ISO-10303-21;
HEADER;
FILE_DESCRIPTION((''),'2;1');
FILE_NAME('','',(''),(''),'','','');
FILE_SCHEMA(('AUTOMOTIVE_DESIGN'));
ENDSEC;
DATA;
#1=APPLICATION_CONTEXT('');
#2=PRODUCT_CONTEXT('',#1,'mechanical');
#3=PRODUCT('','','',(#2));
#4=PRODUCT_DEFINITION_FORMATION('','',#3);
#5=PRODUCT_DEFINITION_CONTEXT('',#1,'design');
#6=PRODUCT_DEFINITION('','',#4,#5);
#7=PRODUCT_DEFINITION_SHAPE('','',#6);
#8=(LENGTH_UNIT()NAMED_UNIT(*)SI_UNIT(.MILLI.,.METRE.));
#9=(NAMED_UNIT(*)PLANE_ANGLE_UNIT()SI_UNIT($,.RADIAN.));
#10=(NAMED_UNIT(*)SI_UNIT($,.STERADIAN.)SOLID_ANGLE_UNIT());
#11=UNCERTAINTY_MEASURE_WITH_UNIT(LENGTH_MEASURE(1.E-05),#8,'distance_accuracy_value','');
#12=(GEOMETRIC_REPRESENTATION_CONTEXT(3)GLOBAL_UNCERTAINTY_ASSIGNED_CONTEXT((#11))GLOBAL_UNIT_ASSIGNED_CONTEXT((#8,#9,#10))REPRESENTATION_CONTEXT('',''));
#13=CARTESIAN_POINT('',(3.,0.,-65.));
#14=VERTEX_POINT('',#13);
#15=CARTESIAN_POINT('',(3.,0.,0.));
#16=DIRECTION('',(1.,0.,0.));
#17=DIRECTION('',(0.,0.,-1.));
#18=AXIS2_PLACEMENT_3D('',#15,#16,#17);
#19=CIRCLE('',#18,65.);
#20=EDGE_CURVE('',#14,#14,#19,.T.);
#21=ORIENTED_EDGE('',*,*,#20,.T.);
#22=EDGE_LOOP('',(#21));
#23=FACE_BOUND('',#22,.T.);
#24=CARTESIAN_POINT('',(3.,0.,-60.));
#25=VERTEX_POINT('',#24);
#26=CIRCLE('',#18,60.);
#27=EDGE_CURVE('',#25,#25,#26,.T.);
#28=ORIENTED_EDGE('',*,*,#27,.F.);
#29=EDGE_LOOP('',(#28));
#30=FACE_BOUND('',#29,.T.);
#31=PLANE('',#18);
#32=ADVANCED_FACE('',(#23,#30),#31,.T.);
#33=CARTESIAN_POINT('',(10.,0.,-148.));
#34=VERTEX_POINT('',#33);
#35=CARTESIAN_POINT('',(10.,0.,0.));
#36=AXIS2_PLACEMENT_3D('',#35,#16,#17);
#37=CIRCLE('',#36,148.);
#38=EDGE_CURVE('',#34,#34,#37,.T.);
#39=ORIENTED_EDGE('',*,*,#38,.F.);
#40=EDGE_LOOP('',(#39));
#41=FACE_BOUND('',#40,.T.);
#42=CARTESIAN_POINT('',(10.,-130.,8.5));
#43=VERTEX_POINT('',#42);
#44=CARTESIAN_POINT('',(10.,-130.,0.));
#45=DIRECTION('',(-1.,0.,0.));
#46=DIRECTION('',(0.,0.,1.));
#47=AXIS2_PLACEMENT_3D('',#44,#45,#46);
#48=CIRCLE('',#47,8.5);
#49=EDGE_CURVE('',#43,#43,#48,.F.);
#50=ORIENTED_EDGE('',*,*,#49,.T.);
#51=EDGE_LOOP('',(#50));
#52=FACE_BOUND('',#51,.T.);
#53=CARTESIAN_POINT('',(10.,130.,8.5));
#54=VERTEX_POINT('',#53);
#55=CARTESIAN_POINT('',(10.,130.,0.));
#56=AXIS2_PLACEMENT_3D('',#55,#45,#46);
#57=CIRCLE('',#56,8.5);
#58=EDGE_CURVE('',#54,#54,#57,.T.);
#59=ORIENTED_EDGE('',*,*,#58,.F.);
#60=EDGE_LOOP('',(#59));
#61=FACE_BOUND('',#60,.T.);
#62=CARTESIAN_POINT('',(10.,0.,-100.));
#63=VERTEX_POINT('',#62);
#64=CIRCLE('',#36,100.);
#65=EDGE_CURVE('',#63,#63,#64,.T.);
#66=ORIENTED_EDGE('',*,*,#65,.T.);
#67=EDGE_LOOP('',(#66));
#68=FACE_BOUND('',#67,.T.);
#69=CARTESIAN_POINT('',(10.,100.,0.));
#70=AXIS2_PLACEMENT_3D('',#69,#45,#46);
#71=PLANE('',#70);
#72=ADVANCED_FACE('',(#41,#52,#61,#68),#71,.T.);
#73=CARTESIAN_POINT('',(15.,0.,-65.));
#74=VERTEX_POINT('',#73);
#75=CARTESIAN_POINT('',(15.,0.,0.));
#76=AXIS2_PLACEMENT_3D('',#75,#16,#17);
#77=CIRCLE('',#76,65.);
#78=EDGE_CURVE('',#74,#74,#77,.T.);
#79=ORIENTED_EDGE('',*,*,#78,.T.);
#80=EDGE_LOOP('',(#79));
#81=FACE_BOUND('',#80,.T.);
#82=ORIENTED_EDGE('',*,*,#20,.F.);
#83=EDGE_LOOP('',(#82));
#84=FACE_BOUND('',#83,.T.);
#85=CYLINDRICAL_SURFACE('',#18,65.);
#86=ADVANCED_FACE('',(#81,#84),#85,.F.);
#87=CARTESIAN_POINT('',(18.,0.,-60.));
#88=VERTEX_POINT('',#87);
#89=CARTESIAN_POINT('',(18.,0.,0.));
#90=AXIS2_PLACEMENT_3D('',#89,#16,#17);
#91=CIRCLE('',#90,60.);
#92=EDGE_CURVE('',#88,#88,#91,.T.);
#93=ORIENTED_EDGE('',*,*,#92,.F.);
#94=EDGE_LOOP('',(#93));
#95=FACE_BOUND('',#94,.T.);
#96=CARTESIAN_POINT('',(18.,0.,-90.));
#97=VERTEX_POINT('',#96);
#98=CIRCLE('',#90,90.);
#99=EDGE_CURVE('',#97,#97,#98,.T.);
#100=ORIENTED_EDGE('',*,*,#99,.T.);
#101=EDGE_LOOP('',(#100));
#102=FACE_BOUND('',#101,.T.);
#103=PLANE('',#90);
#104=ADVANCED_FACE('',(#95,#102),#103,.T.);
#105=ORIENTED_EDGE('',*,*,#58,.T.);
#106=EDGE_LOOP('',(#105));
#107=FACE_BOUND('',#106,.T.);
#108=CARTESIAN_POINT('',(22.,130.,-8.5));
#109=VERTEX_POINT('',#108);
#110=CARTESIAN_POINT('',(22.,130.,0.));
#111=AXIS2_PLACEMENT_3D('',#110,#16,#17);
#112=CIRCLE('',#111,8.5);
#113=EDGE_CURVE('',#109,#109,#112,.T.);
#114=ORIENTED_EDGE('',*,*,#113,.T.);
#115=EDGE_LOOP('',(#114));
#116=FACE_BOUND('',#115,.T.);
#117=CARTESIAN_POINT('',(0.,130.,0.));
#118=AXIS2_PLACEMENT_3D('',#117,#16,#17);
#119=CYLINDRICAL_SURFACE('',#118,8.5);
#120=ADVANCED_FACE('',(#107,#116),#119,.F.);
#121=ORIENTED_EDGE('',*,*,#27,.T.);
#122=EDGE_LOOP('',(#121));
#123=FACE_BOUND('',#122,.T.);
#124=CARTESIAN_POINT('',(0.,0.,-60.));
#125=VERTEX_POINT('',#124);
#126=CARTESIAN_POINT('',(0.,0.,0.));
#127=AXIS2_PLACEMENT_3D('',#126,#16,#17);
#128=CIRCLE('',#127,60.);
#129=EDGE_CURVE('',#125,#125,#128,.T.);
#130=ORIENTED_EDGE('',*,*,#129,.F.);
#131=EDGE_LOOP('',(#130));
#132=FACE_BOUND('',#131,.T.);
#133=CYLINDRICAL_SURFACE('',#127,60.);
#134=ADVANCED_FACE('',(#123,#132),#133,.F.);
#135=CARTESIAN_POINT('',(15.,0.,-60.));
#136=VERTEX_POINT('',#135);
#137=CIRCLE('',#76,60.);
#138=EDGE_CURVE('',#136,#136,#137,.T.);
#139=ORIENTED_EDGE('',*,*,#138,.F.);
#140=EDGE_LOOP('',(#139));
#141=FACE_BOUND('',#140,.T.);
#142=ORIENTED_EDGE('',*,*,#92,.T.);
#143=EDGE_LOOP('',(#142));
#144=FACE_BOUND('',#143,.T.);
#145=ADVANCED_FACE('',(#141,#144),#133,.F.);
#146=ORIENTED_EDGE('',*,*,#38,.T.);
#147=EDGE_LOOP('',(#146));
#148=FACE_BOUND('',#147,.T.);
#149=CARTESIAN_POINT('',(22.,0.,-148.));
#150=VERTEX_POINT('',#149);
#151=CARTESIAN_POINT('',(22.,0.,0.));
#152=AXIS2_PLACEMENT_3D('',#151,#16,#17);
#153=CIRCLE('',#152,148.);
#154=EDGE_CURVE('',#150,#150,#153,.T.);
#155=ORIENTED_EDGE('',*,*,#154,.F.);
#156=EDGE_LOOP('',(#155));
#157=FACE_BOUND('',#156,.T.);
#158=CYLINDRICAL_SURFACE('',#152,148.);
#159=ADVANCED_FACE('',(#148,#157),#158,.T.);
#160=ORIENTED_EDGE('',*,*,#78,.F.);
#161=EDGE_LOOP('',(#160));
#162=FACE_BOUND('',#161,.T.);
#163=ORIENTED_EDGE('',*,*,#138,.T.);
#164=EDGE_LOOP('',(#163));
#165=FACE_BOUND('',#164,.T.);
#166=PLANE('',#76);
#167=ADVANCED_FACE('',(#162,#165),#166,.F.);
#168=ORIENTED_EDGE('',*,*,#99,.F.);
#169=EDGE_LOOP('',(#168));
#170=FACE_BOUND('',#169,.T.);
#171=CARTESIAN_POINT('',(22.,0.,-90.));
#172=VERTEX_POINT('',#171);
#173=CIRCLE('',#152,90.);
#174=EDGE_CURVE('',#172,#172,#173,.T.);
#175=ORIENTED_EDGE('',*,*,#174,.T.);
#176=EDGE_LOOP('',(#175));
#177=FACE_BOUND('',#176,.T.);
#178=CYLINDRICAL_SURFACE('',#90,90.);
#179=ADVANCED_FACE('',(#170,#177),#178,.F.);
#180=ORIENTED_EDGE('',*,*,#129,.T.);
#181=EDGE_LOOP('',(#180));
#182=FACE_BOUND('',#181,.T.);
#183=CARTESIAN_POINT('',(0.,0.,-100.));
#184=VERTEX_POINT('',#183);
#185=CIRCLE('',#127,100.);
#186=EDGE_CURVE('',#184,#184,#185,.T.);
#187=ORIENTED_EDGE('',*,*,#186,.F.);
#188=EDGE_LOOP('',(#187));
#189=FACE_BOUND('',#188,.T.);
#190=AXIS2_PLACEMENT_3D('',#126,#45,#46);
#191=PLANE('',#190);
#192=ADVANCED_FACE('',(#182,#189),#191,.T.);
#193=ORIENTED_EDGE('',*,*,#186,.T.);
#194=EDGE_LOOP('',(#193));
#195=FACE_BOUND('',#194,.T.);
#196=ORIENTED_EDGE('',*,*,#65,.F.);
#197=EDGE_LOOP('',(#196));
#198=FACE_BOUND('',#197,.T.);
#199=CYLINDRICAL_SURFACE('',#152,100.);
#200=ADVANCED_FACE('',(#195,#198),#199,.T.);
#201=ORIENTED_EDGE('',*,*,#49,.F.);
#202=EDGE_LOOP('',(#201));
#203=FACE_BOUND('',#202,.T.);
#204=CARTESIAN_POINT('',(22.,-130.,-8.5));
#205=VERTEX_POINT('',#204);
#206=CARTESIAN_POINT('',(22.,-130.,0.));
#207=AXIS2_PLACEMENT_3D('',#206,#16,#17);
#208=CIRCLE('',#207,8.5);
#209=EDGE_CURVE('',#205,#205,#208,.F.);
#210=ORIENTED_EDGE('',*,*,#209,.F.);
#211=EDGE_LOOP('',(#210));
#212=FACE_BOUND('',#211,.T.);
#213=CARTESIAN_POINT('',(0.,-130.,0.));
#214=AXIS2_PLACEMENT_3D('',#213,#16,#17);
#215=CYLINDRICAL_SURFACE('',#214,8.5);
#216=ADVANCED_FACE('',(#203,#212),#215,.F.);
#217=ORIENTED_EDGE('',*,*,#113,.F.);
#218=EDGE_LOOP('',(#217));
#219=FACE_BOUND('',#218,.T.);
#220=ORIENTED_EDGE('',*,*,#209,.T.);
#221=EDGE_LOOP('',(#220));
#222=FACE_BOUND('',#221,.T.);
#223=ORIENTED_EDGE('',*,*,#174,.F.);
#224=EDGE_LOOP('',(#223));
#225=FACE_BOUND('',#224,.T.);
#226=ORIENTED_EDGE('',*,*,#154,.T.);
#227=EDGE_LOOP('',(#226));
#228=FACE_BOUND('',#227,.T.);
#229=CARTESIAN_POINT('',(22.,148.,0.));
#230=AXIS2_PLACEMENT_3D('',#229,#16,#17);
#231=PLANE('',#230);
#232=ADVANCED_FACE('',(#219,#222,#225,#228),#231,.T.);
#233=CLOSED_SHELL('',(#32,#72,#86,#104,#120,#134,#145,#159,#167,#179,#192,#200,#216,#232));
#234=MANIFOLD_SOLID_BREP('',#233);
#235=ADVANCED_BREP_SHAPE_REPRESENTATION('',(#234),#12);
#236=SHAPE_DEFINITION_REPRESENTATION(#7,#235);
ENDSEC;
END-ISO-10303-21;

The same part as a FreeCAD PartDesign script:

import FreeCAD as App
import Part
import Sketcher
from FreeCAD import Vector
Q = App.Units.Quantity

doc = App.newDocument("Part")
body = doc.addObject("PartDesign::Body", "Body")

# Sketch on XY plane
sketch1 = body.newObject("Sketcher::SketchObject", "Sketch")
sketch1.AttachmentSupport = (doc.getObject("XY_Plane"), [""])
sketch1.MapMode = "FlatFace"
sketch1.addGeometry(Part.LineSegment(Vector(0, 0, 0), Vector(22, 0, 0)), False)
sketch1.addGeometry(Part.LineSegment(Vector(22, 0, 0), Vector(22, 148, 0)), False)
sketch1.addGeometry(Part.LineSegment(Vector(22, 148, 0), Vector(10, 148, 0)), False)
sketch1.addGeometry(Part.LineSegment(Vector(10, 148, 0), Vector(10, 100, 0)), False)
sketch1.addGeometry(Part.LineSegment(Vector(10, 100, 0), Vector(0, 100, 0)), False)
sketch1.addGeometry(Part.LineSegment(Vector(0, 100, 0), Vector(0, 0, 0)), False)
sketch1.addConstraint(Sketcher.Constraint("Coincident", 0, 2, 1, 1))
sketch1.addConstraint(Sketcher.Constraint("Coincident", 1, 2, 2, 1))
sketch1.addConstraint(Sketcher.Constraint("Coincident", 2, 2, 3, 1))
sketch1.addConstraint(Sketcher.Constraint("Coincident", 3, 2, 4, 1))
sketch1.addConstraint(Sketcher.Constraint("Coincident", 4, 2, 5, 1))
sketch1.addConstraint(Sketcher.Constraint("Coincident", 5, 2, 0, 1))
sketch1.addConstraint(Sketcher.Constraint("Horizontal", 0))
sketch1.addConstraint(Sketcher.Constraint("Vertical", 1))
sketch1.addConstraint(Sketcher.Constraint("Horizontal", 2))
sketch1.addConstraint(Sketcher.Constraint("Vertical", 3))
sketch1.addConstraint(Sketcher.Constraint("Horizontal", 4))
sketch1.addConstraint(Sketcher.Constraint("Vertical", 5))
sketch1.addConstraint(Sketcher.Constraint("Coincident", 5, 2, -1, 1))
sketch1.addConstraint(Sketcher.Constraint("DistanceX", 0, 1, 0, 2, Q("22 mm")))
sketch1.addConstraint(Sketcher.Constraint("DistanceX", 2, 2, 2, 1, Q("12 mm")))
sketch1.addConstraint(Sketcher.Constraint("DistanceY", 1, 1, 1, 2, Q("148 mm")))
sketch1.addConstraint(Sketcher.Constraint("DistanceY", 3, 2, 3, 1, Q("48 mm")))
revolution = body.newObject("PartDesign::Revolution", "Revolution")
revolution.Profile = sketch1
revolution.ReferenceAxis = (sketch1, ["H_Axis"])
revolution.Angle = 360

# Sketch on YZ plane
sketch2 = body.newObject("Sketcher::SketchObject", "Sketch001")
sketch2.AttachmentSupport = (doc.getObject("YZ_Plane"), [""])
sketch2.MapMode = "FlatFace"
sketch2.AttachmentOffset = App.Placement(Vector(0, 0, 22), App.Rotation())
sketch2.addGeometry(Part.Circle(Vector(130, 0, 0), Vector(0, 0, 1), 8), False)
sketch2.addGeometry(Part.Circle(Vector(-130, 0, 0), Vector(0, 0, 1), 8), False)
sketch2.addConstraint(Sketcher.Constraint("Equal", 0, 1))
sketch2.addConstraint(Sketcher.Constraint("Symmetric", 0, 3, 1, 3, -1, 1))
sketch2.addConstraint(Sketcher.Constraint("PointOnObject", 0, 3, -1))
sketch2.addConstraint(Sketcher.Constraint("Diameter", 0, Q("17 mm")))
sketch2.addConstraint(Sketcher.Constraint("DistanceX", -1, 1, 0, 3, Q("130 mm")))
pocket1 = body.newObject("PartDesign::Pocket", "Pocket")
pocket1.Profile = sketch2
pocket1.Type = "ThroughAll"
pocket1.Midplane = True

# Sketch on YZ plane
sketch3 = body.newObject("Sketcher::SketchObject", "Sketch002")
sketch3.AttachmentSupport = (doc.getObject("YZ_Plane"), [""])
sketch3.MapMode = "FlatFace"
sketch3.AttachmentOffset = App.Placement(Vector(0, 0, 22), App.Rotation())
sketch3.addGeometry(Part.Circle(Vector(0, 0, 0), Vector(0, 0, 1), 90), False)
sketch3.addConstraint(Sketcher.Constraint("Coincident", 0, 3, -1, 1))
sketch3.addConstraint(Sketcher.Constraint("Diameter", 0, Q("180 mm")))
pocket2 = body.newObject("PartDesign::Pocket", "Pocket001")
pocket2.Profile = sketch3
pocket2.Length = 4

# Sketch on YZ plane
sketch4 = body.newObject("Sketcher::SketchObject", "Sketch003")
sketch4.AttachmentSupport = (doc.getObject("YZ_Plane"), [""])
sketch4.MapMode = "FlatFace"
sketch4.AttachmentOffset = App.Placement(Vector(0, 0, 15), App.Rotation())
sketch4.addGeometry(Part.Circle(Vector(0, 0, 0), Vector(0, 0, 1), 65), False)
sketch4.addConstraint(Sketcher.Constraint("Coincident", 0, 3, -1, 1))
sketch4.addConstraint(Sketcher.Constraint("Diameter", 0, Q("130 mm")))
pocket3 = body.newObject("PartDesign::Pocket", "Pocket002")
pocket3.Profile = sketch4
pocket3.Length = 12

# Sketch on YZ plane
sketch5 = body.newObject("Sketcher::SketchObject", "Sketch004")
sketch5.AttachmentSupport = (doc.getObject("YZ_Plane"), [""])
sketch5.MapMode = "FlatFace"
sketch5.AttachmentOffset = App.Placement(Vector(0, 0, 22), App.Rotation())
sketch5.addGeometry(Part.Circle(Vector(0, 0, 0), Vector(0, 0, 1), 60), False)
sketch5.addConstraint(Sketcher.Constraint("Coincident", 0, 3, -1, 1))
sketch5.addConstraint(Sketcher.Constraint("Diameter", 0, Q("120 mm")))
pocket4 = body.newObject("PartDesign::Pocket", "Pocket003")
pocket4.Profile = sketch5
pocket4.Type = "ThroughAll"
pocket4.Midplane = True

doc.recompute()
